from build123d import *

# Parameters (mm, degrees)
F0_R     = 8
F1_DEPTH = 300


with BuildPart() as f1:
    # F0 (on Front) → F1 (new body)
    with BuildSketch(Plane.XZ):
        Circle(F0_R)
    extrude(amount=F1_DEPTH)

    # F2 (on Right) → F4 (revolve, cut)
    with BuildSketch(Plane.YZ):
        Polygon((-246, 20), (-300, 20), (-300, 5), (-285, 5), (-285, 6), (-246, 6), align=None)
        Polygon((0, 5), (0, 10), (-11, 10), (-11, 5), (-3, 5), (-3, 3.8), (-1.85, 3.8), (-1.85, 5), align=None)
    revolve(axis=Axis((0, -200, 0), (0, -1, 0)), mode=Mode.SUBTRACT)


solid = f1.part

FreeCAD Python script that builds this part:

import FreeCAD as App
import Part
import Sketcher

V = App.Vector


def add_polygon(sketch, points):
    """Adds a closed chain of lines whose ends are joined by coincident constraints."""
    first, n = sketch.GeometryCount, len(points)
    for a, b in zip(points, points[1:] + points[:1]):
        sketch.addGeometry(Part.LineSegment(App.Vector(*a, 0), App.Vector(*b, 0)), False)
    for i in range(n):
        sketch.addConstraint(Sketcher.Constraint("Coincident", first + i, 2, first + (i + 1) % n, 1))

doc = App.newDocument("Part")
params = doc.addObject("Spreadsheet::Sheet", "Params")
for row, (alias, value) in enumerate([
    ("sketch1_diameter", "16 mm"),
    ("pad1_length", "300 mm"),
    ("sketch2_width", "54 mm"),
    ("sketch2_width2", "15 mm"),
    ("sketch2_width3", "11 mm"),
    ("sketch2_width4", "8 mm"),
    ("sketch2_height", "1 mm"),
    ("groove_angle", "360 deg"),
], start=1):
    params.set(f"A{row}", alias)
    params.set(f"B{row}", "=" + value)
    params.setAlias(f"B{row}", alias)

body = doc.addObject("PartDesign::Body", "Body")

# Sketch on XZ plane
sketch1 = body.newObject("Sketcher::SketchObject", "Sketch")
sketch1.AttachmentSupport = (doc.getObject("XZ_Plane"), [""])
sketch1.MapMode = "FlatFace"
sketch1.addGeometry(Part.Circle(V(0, 0, 0), V(0, 0, 1), 8), False)
sketch1.addConstraint(Sketcher.Constraint("Coincident", 0, 3, -1, 1))
sketch1.addConstraint(Sketcher.Constraint("Diameter", 0, 16.0))
sketch1.setExpression("Constraints[1]", "Params.sketch1_diameter")
pad1 = body.newObject("PartDesign::Pad", "Pad")
pad1.Profile = sketch1
pad1.setExpression("Length", "Params.pad1_length")

# Sketch on YZ plane
sketch2 = body.newObject("Sketcher::SketchObject", "Sketch001")
sketch2.AttachmentSupport = (doc.getObject("YZ_Plane"), [""])
sketch2.MapMode = "FlatFace"
add_polygon(sketch2, [(-246, 20), (-300, 20), (-300, 5), (-285, 5), (-285, 6), (-246, 6)])  # lines 0-5
add_polygon(sketch2, [(0, 5), (0, 10), (-11, 10), (-11, 5), (-3, 5), (-3, 3.8), (-1.85, 3.8), (-1.85, 5)])  # lines 6-13
sketch2.addConstraint(Sketcher.Constraint("Horizontal", 0))
sketch2.addConstraint(Sketcher.Constraint("Vertical", 1))
sketch2.addConstraint(Sketcher.Constraint("Horizontal", 2))
sketch2.addConstraint(Sketcher.Constraint("Vertical", 3))
sketch2.addConstraint(Sketcher.Constraint("Horizontal", 4))
sketch2.addConstraint(Sketcher.Constraint("Vertical", 5))
sketch2.addConstraint(Sketcher.Constraint("Vertical", 6))
sketch2.addConstraint(Sketcher.Constraint("Horizontal", 7))
sketch2.addConstraint(Sketcher.Constraint("Vertical", 8))
sketch2.addConstraint(Sketcher.Constraint("Horizontal", 9))
sketch2.addConstraint(Sketcher.Constraint("Vertical", 10))
sketch2.addConstraint(Sketcher.Constraint("Horizontal", 11))
sketch2.addConstraint(Sketcher.Constraint("Vertical", 12))
sketch2.addConstraint(Sketcher.Constraint("Horizontal", 13))
sketch2.addConstraint(Sketcher.Constraint("PointOnObject", 6, 2, -2))
sketch2.addConstraint(Sketcher.Constraint("Horizontal", 2, 2, 8, 2))
sketch2.addConstraint(Sketcher.Constraint("Horizontal", 9, 2, 12, 2))
sketch2.addConstraint(Sketcher.Constraint("Equal", 2, 1))
sketch2.addConstraint(Sketcher.Constraint("DistanceX", 0, 2, 0, 1, 54.0))
sketch2.addConstraint(Sketcher.Constraint("DistanceX", 2, 1, 2, 2, 15.0))
sketch2.addConstraint(Sketcher.Constraint("DistanceX", 7, 2, 7, 1, 11.0))
sketch2.addConstraint(Sketcher.Constraint("DistanceX", 9, 1, 9, 2, 8.0))
sketch2.addConstraint(Sketcher.Constraint("DistanceY", 3, 1, 3, 2, 1.0))
sketch2.addConstraint(Sketcher.Constraint("DistanceY", 6, 1, 6, 2, 5.0))
sketch2.addConstraint(Sketcher.Constraint("DistanceY", 10, 2, 10, 1, 1.2))
sketch2.addConstraint(Sketcher.Constraint("DistanceX", 0, 2, -1, 1, 300.0))
sketch2.addConstraint(Sketcher.Constraint("DistanceY", -1, 1, 0, 2, 20.0))
sketch2.addConstraint(Sketcher.Constraint("DistanceX", 11, 1, 11, 2, 1.15))
sketch2.setExpression("Constraints[32]", "Params.sketch2_width")
sketch2.setExpression("Constraints[33]", "Params.sketch2_width2")
sketch2.setExpression("Constraints[34]", "Params.sketch2_width3")
sketch2.setExpression("Constraints[35]", "Params.sketch2_width4")
sketch2.setExpression("Constraints[36]", "Params.sketch2_height")
groove = body.newObject("PartDesign::Groove", "Groove")
groove.Profile = sketch2
groove.ReferenceAxis = (sketch2, ["H_Axis"])
groove.setExpression("Angle", "Params.groove_angle")

doc.recompute()
